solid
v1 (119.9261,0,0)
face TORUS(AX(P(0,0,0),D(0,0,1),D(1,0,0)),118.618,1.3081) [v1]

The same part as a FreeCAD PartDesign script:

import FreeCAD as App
import Part
import Sketcher
from FreeCAD import Vector
Q = App.Units.Quantity

doc = App.newDocument("Part")
params = doc.addObject("Spreadsheet::Sheet", "Params")
for row, (alias, value) in enumerate([
    ("sketch1_diameter", "0.103 in"),
    ("revolution_angle", "360 deg"),
], start=1):
    params.set(f"A{row}", alias)
    params.set(f"B{row}", "=" + value)
    params.setAlias(f"B{row}", alias)

body = doc.addObject("PartDesign::Body", "Body")

# Sketch on YZ plane
sketch1 = doc.addObject("Sketcher::SketchObject", "Sketch")
body.addObject(sketch1)
sketch1.AttachmentSupport = (doc.YZ_Plane, [""])
sketch1.MapMode = "FlatFace"
sketch1.addGeometry(Part.Circle(Vector(-118.6, 0, 0), Vector(0, 0, 1), 1.3), False)
sketch1.addConstraint([
    Sketcher.Constraint("PointOnObject", 0, 3, -1),
    Sketcher.Constraint("Diameter", 0, Q("0.103 in")),
    Sketcher.Constraint("DistanceX", 0, 3, -1, 1, Q("4.67 in")),
])
sketch1.setExpression("Constraints[1]", "Params.sketch1_diameter")
revolution = doc.addObject("PartDesign::Revolution", "Revolution")
body.addObject(revolution)
revolution.Profile = sketch1
revolution.ReferenceAxis = (sketch1, ["V_Axis"])
revolution.setExpression("Angle", "Params.revolution_angle")

doc.recompute()
